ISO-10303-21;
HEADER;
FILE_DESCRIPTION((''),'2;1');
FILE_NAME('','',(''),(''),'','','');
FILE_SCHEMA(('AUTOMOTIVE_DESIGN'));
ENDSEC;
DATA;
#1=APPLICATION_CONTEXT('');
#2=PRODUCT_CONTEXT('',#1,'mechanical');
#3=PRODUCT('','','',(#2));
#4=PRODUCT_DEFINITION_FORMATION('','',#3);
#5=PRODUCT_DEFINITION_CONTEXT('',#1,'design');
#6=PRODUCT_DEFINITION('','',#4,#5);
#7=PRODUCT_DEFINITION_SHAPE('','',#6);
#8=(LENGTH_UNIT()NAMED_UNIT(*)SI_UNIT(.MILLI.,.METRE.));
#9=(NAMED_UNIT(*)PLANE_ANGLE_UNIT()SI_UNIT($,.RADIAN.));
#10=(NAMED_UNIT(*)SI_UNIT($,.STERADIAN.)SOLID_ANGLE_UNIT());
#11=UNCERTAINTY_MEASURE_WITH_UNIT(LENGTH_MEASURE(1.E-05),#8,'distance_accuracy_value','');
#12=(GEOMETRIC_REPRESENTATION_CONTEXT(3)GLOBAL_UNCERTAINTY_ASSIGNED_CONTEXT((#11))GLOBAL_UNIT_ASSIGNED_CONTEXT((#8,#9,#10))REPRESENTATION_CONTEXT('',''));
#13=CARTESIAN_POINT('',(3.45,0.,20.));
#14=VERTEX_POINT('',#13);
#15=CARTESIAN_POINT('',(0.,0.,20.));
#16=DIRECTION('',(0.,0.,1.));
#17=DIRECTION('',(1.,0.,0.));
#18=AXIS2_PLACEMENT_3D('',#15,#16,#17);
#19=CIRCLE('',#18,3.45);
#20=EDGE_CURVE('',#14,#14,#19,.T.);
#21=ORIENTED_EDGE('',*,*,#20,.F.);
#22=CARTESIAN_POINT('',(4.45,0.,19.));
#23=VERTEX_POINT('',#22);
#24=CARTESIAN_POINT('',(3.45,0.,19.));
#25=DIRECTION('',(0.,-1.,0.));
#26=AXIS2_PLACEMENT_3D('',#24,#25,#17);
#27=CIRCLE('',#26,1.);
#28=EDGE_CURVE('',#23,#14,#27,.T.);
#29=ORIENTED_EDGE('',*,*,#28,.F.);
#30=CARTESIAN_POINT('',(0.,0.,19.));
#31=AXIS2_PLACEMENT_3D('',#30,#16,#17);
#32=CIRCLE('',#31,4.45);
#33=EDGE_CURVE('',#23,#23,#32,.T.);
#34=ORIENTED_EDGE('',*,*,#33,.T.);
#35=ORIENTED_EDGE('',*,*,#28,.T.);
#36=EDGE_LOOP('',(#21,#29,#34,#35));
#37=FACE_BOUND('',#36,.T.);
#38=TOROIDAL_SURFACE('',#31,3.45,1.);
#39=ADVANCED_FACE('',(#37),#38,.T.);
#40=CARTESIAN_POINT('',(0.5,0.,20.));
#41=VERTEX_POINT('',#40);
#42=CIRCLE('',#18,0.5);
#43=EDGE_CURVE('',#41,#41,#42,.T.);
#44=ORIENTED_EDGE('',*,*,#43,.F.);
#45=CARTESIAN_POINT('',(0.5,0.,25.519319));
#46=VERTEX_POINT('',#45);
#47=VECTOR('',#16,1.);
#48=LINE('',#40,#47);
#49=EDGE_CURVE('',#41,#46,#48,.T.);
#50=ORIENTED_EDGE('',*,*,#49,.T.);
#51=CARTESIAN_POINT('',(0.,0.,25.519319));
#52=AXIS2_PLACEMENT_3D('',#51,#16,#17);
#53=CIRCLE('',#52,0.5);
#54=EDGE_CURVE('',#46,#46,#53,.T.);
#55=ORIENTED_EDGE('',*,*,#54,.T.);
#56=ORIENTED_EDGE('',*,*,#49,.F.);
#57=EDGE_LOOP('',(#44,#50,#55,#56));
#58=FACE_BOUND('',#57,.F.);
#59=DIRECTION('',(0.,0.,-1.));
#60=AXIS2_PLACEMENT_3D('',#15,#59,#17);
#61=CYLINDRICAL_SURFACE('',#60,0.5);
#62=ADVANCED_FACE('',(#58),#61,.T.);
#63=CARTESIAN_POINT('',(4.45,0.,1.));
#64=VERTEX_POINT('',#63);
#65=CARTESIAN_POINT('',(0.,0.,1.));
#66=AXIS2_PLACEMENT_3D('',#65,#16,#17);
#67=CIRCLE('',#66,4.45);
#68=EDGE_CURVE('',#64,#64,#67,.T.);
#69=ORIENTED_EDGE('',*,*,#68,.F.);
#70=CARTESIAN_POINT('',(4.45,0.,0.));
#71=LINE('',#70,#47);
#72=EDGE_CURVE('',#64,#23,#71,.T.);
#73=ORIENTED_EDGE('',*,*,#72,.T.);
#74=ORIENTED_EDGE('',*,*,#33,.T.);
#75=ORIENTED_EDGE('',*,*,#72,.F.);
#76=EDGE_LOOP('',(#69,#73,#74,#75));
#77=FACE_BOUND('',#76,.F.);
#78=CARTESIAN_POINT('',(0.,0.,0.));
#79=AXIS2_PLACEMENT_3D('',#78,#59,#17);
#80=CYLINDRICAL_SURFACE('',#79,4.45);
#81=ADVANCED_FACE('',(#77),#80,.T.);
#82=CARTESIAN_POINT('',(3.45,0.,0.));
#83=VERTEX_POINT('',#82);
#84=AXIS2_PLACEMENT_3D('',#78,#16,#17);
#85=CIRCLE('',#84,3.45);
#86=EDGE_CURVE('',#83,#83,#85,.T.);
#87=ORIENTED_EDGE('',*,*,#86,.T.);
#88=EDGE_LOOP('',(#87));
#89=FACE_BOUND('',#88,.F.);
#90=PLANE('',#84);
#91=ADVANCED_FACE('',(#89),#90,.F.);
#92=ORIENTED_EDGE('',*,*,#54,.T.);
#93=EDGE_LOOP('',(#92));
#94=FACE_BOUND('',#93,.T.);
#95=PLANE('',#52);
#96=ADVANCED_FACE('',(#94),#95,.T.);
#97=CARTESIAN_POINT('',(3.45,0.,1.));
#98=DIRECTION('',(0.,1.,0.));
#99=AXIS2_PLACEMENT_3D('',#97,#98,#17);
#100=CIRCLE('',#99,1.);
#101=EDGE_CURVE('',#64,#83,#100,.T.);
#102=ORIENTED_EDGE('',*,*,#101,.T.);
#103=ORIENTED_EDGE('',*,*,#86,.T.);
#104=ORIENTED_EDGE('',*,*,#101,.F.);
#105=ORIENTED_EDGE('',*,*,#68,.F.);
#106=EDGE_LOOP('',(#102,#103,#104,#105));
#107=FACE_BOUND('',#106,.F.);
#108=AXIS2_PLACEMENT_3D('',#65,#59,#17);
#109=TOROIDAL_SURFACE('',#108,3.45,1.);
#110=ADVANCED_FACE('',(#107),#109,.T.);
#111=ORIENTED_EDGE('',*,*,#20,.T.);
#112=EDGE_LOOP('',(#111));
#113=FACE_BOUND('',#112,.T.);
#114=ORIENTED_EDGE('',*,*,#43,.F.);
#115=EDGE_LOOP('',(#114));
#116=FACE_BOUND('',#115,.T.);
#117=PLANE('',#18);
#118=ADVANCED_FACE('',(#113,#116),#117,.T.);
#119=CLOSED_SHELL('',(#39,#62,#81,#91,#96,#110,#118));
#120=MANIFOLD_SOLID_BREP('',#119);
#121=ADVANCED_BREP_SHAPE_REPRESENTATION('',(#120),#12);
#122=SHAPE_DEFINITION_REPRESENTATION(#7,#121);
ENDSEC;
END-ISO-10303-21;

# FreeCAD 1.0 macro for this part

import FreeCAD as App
import Part
import Sketcher
Q = App.Units.Quantity


def edges_at(feature, points):
    """Names of the edges that pass closest to the given points."""
    edges = feature.Shape.Edges
    near = lambda p: min(range(len(edges)), key=lambda i: edges[i].distToShape(Part.Vertex(*p))[0])
    return sorted({f"Edge{near(p) + 1}" for p in points})

doc = App.newDocument("Part")
body = doc.addObject("PartDesign::Body", "Body")

sketch1 = body.newObject("Sketcher::SketchObject", "Sketch")
sketch1.AttachmentSupport = (doc.getObject("XY_Plane"), [""])
sketch1.MapMode = "FlatFace"
sketch1.addGeometry(Part.Circle(App.Vector(0, 0, 0), App.Vector(0, 0, 1), 4.45), False)
sketch1.addConstraint(Sketcher.Constraint("Coincident", 0, 3, -1, 1))
sketch1.addConstraint(Sketcher.Constraint("Diameter", 0, Q("8.9 mm")))
pad1 = body.newObject("PartDesign::Pad", "Pad")
pad1.Profile = sketch1
pad1.Length = 20
doc.recompute()

fillet = body.newObject("PartDesign::Fillet", "Fillet")
fillet.Base = (pad1, edges_at(pad1, [(-4.45, 0, 20), (-4.45, 0, 0)]))
fillet.Radius = 1

sketch2 = body.newObject("Sketcher::SketchObject", "Sketch001")
sketch2.AttachmentSupport = (doc.getObject("XY_Plane"), [""])
sketch2.MapMode = "FlatFace"
sketch2.AttachmentOffset = App.Placement(App.Vector(0, 0, 20), App.Rotation())
sketch2.addGeometry(Part.Circle(App.Vector(0, 0, 0), App.Vector(0, 0, 1), 0.5), False)
sketch2.addConstraint(Sketcher.Constraint("Coincident", 0, 3, -1, 1))
sketch2.addConstraint(Sketcher.Constraint("Diameter", 0, Q("1 mm")))
pad2 = body.newObject("PartDesign::Pad", "Pad001")
pad2.Profile = sketch2
pad2.Length = 5.519319

doc.recompute()
